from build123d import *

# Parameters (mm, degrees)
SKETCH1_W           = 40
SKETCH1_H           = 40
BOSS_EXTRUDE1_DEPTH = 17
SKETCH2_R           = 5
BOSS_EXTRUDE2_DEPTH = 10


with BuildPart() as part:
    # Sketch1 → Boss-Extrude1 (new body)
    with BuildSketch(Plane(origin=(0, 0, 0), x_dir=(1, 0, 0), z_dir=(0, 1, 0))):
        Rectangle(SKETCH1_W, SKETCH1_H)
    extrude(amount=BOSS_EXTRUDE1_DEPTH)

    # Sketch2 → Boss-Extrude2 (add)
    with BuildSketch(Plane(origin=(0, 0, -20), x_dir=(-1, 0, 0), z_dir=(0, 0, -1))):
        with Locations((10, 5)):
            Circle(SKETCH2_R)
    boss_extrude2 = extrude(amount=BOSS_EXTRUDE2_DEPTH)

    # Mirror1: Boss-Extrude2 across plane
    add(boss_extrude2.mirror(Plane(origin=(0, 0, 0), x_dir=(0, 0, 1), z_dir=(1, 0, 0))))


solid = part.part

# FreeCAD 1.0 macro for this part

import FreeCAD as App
import Part
import Sketcher

V = App.Vector


def add_polygon(sketch, points):
    """Adds a closed chain of lines whose ends are joined by coincident constraints."""
    first, n = sketch.GeometryCount, len(points)
    for a, b in zip(points, points[1:] + points[:1]):
        sketch.addGeometry(Part.LineSegment(App.Vector(*a, 0), App.Vector(*b, 0)), False)
    for i in range(n):
        sketch.addConstraint(Sketcher.Constraint("Coincident", first + i, 2, first + (i + 1) % n, 1))

doc = App.newDocument("Part")
body = doc.addObject("PartDesign::Body", "Body")

sketch1 = body.newObject("Sketcher::SketchObject", "Sketch")
sketch1.AttachmentSupport = (doc.getObject("XZ_Plane"), [""])
sketch1.MapMode = "FlatFace"
add_polygon(sketch1, [(-20, -20), (-20, 20), (20, 20), (20, -20)])
sketch1.addConstraint(Sketcher.Constraint("Vertical", 0))
sketch1.addConstraint(Sketcher.Constraint("Horizontal", 1))
sketch1.addConstraint(Sketcher.Constraint("Vertical", 2))
sketch1.addConstraint(Sketcher.Constraint("Horizontal", 3))
sketch1.addConstraint(Sketcher.Constraint("Symmetric", 0, 2, 2, 2, -1, 1))
sketch1.addConstraint(Sketcher.Constraint("Equal", 3, 0))
sketch1.addConstraint(Sketcher.Constraint("DistanceX", 1, 1, 1, 2, 40.0))
pad1 = body.newObject("PartDesign::Pad", "Pad")
pad1.Profile = sketch1
pad1.Length = 17
pad1.Reversed = True

sketch2 = body.newObject("Sketcher::SketchObject", "Sketch001")
sketch2.AttachmentSupport = (doc.getObject("XY_Plane"), [""])
sketch2.MapMode = "FlatFace"
sketch2.AttachmentOffset = App.Placement(V(0, 0, -20), App.Rotation())
sketch2.addGeometry(Part.Circle(V(-10, 5, 0), V(0, 0, 1), 5), False)
sketch2.addConstraint(Sketcher.Constraint("Diameter", 0, 10.0))
sketch2.addConstraint(Sketcher.Constraint("DistanceX", 0, 3, -1, 1, 10.0))
sketch2.addConstraint(Sketcher.Constraint("DistanceY", -1, 1, 0, 3, 5.0))
pad2 = body.newObject("PartDesign::Pad", "Pad001")
pad2.Profile = sketch2
pad2.Length = 10
pad2.Reversed = True
doc.recompute()

mirrored = body.newObject("PartDesign::Mirrored", "Mirrored")
mirrored.Originals = [pad2]
mirrored.MirrorPlane = (doc.getObject("YZ_Plane"), [""])
body.Tip = mirrored

doc.recompute()
